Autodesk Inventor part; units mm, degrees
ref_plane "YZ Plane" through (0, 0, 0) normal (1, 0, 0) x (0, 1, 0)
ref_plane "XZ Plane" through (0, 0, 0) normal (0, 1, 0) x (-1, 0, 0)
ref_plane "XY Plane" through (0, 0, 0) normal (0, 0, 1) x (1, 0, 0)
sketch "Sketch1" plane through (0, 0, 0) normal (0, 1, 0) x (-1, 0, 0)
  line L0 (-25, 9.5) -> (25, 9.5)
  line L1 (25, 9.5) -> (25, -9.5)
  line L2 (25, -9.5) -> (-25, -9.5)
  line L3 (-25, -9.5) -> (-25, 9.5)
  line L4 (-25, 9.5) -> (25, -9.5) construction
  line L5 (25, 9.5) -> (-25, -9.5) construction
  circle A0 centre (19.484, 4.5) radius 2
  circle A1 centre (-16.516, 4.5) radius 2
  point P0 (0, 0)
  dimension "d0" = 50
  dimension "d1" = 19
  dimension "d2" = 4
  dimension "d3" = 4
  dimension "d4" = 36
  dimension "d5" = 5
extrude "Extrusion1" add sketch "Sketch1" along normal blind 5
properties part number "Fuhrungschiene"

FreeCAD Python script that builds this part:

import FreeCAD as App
import Part
import Sketcher
from FreeCAD import Vector
Q = App.Units.Quantity

doc = App.newDocument("Part")
body = doc.addObject("PartDesign::Body", "Body")

sketch1 = doc.addObject("Sketcher::SketchObject", "Sketch")
body.addObject(sketch1)
sketch1.AttachmentSupport = (doc.XZ_Plane, [""])
sketch1.MapMode = "FlatFace"
sketch1.addGeometry(Part.LineSegment(Vector(-25, 9.5, 0), Vector(25, 9.5, 0)), False)
sketch1.addGeometry(Part.LineSegment(Vector(25, 9.5, 0), Vector(25, -9.5, 0)), False)
sketch1.addGeometry(Part.LineSegment(Vector(25, -9.5, 0), Vector(-25, -9.5, 0)), False)
sketch1.addGeometry(Part.LineSegment(Vector(-25, -9.5, 0), Vector(-25, 9.5, 0)), False)
sketch1.addGeometry(Part.Circle(Vector(16.5, 4.5, 0), Vector(0, 0, 1), 2), False)
sketch1.addGeometry(Part.Circle(Vector(-19.5, 4.5, 0), Vector(0, 0, 1), 2), False)
sketch1.addConstraint(Sketcher.Constraint("Coincident", 0, 2, 1, 1))
sketch1.addConstraint(Sketcher.Constraint("Coincident", 1, 2, 2, 1))
sketch1.addConstraint(Sketcher.Constraint("Coincident", 2, 2, 3, 1))
sketch1.addConstraint(Sketcher.Constraint("Coincident", 3, 2, 0, 1))
sketch1.addConstraint(Sketcher.Constraint("Horizontal", 0))
sketch1.addConstraint(Sketcher.Constraint("Vertical", 1))
sketch1.addConstraint(Sketcher.Constraint("Horizontal", 2))
sketch1.addConstraint(Sketcher.Constraint("Vertical", 3))
sketch1.addConstraint(Sketcher.Constraint("Equal", 4, 5))
sketch1.addConstraint(Sketcher.Constraint("Symmetric", 0, 2, 2, 2, -1, 1))
sketch1.addConstraint(Sketcher.Constraint("Horizontal", 4, 3, 5, 3))
sketch1.addConstraint(Sketcher.Constraint("Diameter", 4, Q("4 mm")))
sketch1.addConstraint(Sketcher.Constraint("DistanceX", 0, 1, 0, 2, Q("50 mm")))
sketch1.addConstraint(Sketcher.Constraint("DistanceY", 1, 2, 1, 1, Q("19 mm")))
sketch1.addConstraint(Sketcher.Constraint("DistanceX", 5, 3, 4, 3, Q("36 mm")))
sketch1.addConstraint(Sketcher.Constraint("DistanceY", 4, 3, 0, 2, Q("5 mm")))
sketch1.addConstraint(Sketcher.Constraint("DistanceX", -1, 1, 4, 3, Q("16.516 mm")))
pad1 = doc.addObject("PartDesign::Pad", "Pad")
body.addObject(pad1)
pad1.Profile = sketch1
pad1.Length = 5
pad1.Reversed = True

doc.recompute()
